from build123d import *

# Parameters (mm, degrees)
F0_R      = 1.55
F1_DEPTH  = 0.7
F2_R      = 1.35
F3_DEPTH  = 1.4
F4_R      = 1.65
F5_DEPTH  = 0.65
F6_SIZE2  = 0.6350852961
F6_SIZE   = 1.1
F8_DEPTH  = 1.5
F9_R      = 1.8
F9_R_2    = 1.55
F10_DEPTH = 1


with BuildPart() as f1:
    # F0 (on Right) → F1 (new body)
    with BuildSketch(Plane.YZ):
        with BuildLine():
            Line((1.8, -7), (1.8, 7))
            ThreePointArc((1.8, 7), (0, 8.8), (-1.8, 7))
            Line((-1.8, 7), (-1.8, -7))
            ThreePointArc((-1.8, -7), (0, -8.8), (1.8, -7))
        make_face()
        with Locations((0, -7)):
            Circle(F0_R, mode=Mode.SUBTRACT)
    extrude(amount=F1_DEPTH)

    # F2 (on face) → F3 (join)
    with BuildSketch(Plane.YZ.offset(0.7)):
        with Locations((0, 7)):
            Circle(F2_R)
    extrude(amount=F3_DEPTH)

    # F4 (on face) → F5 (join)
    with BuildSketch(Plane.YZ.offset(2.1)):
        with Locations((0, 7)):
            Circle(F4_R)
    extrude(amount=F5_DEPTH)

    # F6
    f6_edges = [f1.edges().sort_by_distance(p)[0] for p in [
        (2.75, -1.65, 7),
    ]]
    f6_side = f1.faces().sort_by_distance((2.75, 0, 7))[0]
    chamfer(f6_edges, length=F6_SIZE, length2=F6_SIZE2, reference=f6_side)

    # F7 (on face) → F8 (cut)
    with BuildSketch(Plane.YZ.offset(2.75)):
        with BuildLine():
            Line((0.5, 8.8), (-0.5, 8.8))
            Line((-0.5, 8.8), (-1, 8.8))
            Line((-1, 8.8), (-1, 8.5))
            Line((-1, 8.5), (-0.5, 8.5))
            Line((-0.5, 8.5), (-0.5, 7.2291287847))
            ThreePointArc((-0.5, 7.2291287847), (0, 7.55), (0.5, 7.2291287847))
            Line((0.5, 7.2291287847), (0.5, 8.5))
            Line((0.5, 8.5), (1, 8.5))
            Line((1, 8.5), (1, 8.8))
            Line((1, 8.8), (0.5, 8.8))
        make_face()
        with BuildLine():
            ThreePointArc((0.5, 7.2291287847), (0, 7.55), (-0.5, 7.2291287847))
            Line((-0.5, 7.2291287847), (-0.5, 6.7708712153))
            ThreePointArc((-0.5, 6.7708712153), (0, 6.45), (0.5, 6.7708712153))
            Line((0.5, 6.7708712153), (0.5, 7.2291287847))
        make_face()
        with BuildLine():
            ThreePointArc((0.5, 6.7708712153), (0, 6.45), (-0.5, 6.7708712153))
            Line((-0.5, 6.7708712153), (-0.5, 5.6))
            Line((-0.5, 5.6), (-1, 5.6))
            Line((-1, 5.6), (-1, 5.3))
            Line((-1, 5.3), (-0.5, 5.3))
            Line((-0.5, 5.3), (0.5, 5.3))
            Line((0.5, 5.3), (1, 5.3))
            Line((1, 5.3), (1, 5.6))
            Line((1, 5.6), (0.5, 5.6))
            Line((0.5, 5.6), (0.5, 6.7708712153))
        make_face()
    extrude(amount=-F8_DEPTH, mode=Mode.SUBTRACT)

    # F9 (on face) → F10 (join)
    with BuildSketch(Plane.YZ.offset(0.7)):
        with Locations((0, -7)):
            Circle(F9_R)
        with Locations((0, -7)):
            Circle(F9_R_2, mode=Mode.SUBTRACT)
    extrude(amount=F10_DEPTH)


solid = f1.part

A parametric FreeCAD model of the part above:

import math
import FreeCAD as App
import Part
import Sketcher
from FreeCAD import Vector


def edges_at(feature, points):
    """Names of the edges that pass closest to the given points."""
    edges = feature.Shape.Edges
    near = lambda p: min(range(len(edges)), key=lambda i: edges[i].distToShape(Part.Vertex(*p))[0])
    return sorted({f"Edge{near(p) + 1}" for p in points})

doc = App.newDocument("Part")
body = doc.addObject("PartDesign::Body", "Body")

# Sketch on YZ plane
sketch1 = body.newObject("Sketcher::SketchObject", "Sketch")
sketch1.AttachmentSupport = (doc.getObject("YZ_Plane"), [""])
sketch1.MapMode = "FlatFace"
sketch1.addGeometry([
    Part.LineSegment(Vector(1.8, -7, 0), Vector(1.8, 7, 0)),  # 0
    Part.ArcOfCircle(Part.Circle(Vector(0, 7, 0), Vector(0, 0, 1), 1.8), math.radians(0), math.radians(180)),  # 1
    Part.LineSegment(Vector(-1.8, 7, 0), Vector(-1.8, -7, 0)),  # 2
    Part.ArcOfCircle(Part.Circle(Vector(0, -7, 0), Vector(0, 0, 1), 1.8), math.radians(180), math.radians(360)),  # 3
    Part.Circle(Vector(0, -7, 0), Vector(0, 0, 1), 1.6),  # 4
], False)
sketch1.addConstraint([
    Sketcher.Constraint("Tangent", 0, 2, 1, 1),
    Sketcher.Constraint("Tangent", 1, 2, 2, 1),
    Sketcher.Constraint("Tangent", 2, 2, 3, 1),
    Sketcher.Constraint("Tangent", 3, 2, 0, 1),
    Sketcher.Constraint("Vertical", 0),
    Sketcher.Constraint("Vertical", 2),
    Sketcher.Constraint("Coincident", 4, 3, 3, 3),
    Sketcher.Constraint("Symmetric", 1, 3, 3, 3, -1, 1),
    Sketcher.Constraint("Diameter", 4, 3.1),
    Sketcher.Constraint("Radius", 1, 1.8),
    Sketcher.Constraint("DistanceY", 0, 1, 0, 2, 14.0),
])
pad1 = body.newObject("PartDesign::Pad", "Pad")
pad1.Profile = sketch1
pad1.Length = 0.7

# Sketch on YZ plane
sketch2 = body.newObject("Sketcher::SketchObject", "Sketch001")
sketch2.AttachmentSupport = (doc.getObject("YZ_Plane"), [""])
sketch2.MapMode = "FlatFace"
sketch2.AttachmentOffset = App.Placement(Vector(0, 0, 0.7), App.Rotation())
sketch2.addGeometry(Part.Circle(Vector(0, 7, 0), Vector(0, 0, 1), 1.4), False)
sketch2.addConstraint([
    Sketcher.Constraint("PointOnObject", 0, 3, -2),
    Sketcher.Constraint("Diameter", 0, 2.7),
    Sketcher.Constraint("DistanceY", -1, 1, 0, 3, 7.0),
])
pad2 = body.newObject("PartDesign::Pad", "Pad001")
pad2.Profile = sketch2
pad2.Length = 1.4

# Sketch on YZ plane
sketch3 = body.newObject("Sketcher::SketchObject", "Sketch002")
sketch3.AttachmentSupport = (doc.getObject("YZ_Plane"), [""])
sketch3.MapMode = "FlatFace"
sketch3.AttachmentOffset = App.Placement(Vector(0, 0, 2.1), App.Rotation())
sketch3.addGeometry(Part.Circle(Vector(0, 7, 0), Vector(0, 0, 1), 1.6), False)
sketch3.addConstraint([
    Sketcher.Constraint("PointOnObject", 0, 3, -2),
    Sketcher.Constraint("Diameter", 0, 3.3),
    Sketcher.Constraint("DistanceY", -1, 1, 0, 3, 7.0),
])
pad3 = body.newObject("PartDesign::Pad", "Pad002")
pad3.Profile = sketch3
pad3.Length = 0.65
doc.recompute()

chamfer = body.newObject("PartDesign::Chamfer", "Chamfer")
chamfer.Base = (pad3, edges_at(pad3, [(2.75, -1.65, 7)]))
chamfer.ChamferType = "Two distances"
chamfer.Size = 1.1
chamfer.Size2 = 0.635085
chamfer.FlipDirection = True

# Sketch on YZ plane
sketch4 = body.newObject("Sketcher::SketchObject", "Sketch003")
sketch4.AttachmentSupport = (doc.getObject("YZ_Plane"), [""])
sketch4.MapMode = "FlatFace"
sketch4.AttachmentOffset = App.Placement(Vector(0, 0, 2.75), App.Rotation())
sketch4.addGeometry([
    Part.LineSegment(Vector(-1, 8.8, 0), Vector(-1, 8.5, 0)),  # 0
    Part.LineSegment(Vector(-1, 8.5, 0), Vector(-0.5, 8.5, 0)),  # 1
    Part.LineSegment(Vector(-0.5, 8.5, 0), Vector(-0.5, 5.6, 0)),  # 2
    Part.LineSegment(Vector(-0.5, 5.6, 0), Vector(-1, 5.6, 0)),  # 3
    Part.LineSegment(Vector(-1, 5.6, 0), Vector(-1, 5.3, 0)),  # 4
    Part.LineSegment(Vector(-1, 5.3, 0), Vector(1, 5.3, 0)),  # 5
    Part.LineSegment(Vector(1, 5.3, 0), Vector(1, 5.6, 0)),  # 6
    Part.LineSegment(Vector(1, 5.6, 0), Vector(0.5, 5.6, 0)),  # 7
    Part.LineSegment(Vector(0.5, 5.6, 0), Vector(0.5, 8.5, 0)),  # 8
    Part.LineSegment(Vector(0.5, 8.5, 0), Vector(1, 8.5, 0)),  # 9
    Part.LineSegment(Vector(1, 8.5, 0), Vector(1, 8.8, 0)),  # 10
    Part.LineSegment(Vector(1, 8.8, 0), Vector(-1, 8.8, 0)),  # 11
], False)
sketch4.addConstraint([
    Sketcher.Constraint("Coincident", 0, 2, 1, 1),
    Sketcher.Constraint("Coincident", 1, 2, 2, 1),
    Sketcher.Constraint("Coincident", 2, 2, 3, 1),
    Sketcher.Constraint("Coincident", 3, 2, 4, 1),
    Sketcher.Constraint("Coincident", 4, 2, 5, 1),
    Sketcher.Constraint("Coincident", 5, 2, 6, 1),
    Sketcher.Constraint("Coincident", 6, 2, 7, 1),
    Sketcher.Constraint("Coincident", 7, 2, 8, 1),
    Sketcher.Constraint("Coincident", 8, 2, 9, 1),
    Sketcher.Constraint("Coincident", 9, 2, 10, 1),
    Sketcher.Constraint("Coincident", 10, 2, 11, 1),
    Sketcher.Constraint("Coincident", 11, 2, 0, 1),
    Sketcher.Constraint("Vertical", 0),
    Sketcher.Constraint("Horizontal", 1),
    Sketcher.Constraint("Vertical", 2),
    Sketcher.Constraint("Horizontal", 3),
    Sketcher.Constraint("Vertical", 4),
    Sketcher.Constraint("Horizontal", 5),
    Sketcher.Constraint("Vertical", 6),
    Sketcher.Constraint("Horizontal", 7),
    Sketcher.Constraint("Vertical", 8),
    Sketcher.Constraint("Horizontal", 9),
    Sketcher.Constraint("Vertical", 10),
    Sketcher.Constraint("Horizontal", 11),
    Sketcher.Constraint("Symmetric", 3, 2, 6, 2, -2),
    Sketcher.Constraint("Symmetric", 1, 2, 8, 2, -2),
    Sketcher.Constraint("Vertical", 0, 2, 3, 2),
    Sketcher.Constraint("Vertical", 6, 2, 9, 2),
    Sketcher.Constraint("Equal", 0, 4),
    Sketcher.Constraint("DistanceX", 5, 1, 5, 2, 2.0),
    Sketcher.Constraint("DistanceX", 1, 1, 1, 2, 0.5),
    Sketcher.Constraint("DistanceY", 0, 2, 0, 1, 0.3),
    Sketcher.Constraint("DistanceY", 2, 2, 2, 1, 2.9),
    Sketcher.Constraint("DistanceY", -1, 1, 0, 2, 8.5),
])
pocket1 = body.newObject("PartDesign::Pocket", "Pocket")
pocket1.Profile = sketch4
pocket1.Length = 1.5

# Sketch on YZ plane
sketch5 = body.newObject("Sketcher::SketchObject", "Sketch004")
sketch5.AttachmentSupport = (doc.getObject("YZ_Plane"), [""])
sketch5.MapMode = "FlatFace"
sketch5.AttachmentOffset = App.Placement(Vector(0, 0, 0.7), App.Rotation())
sketch5.addGeometry([
    Part.Circle(Vector(0, -7, 0), Vector(0, 0, 1), 1.8),
    Part.Circle(Vector(0, -7, 0), Vector(0, 0, 1), 1.6),
], False)
sketch5.addConstraint([
    Sketcher.Constraint("Coincident", 1, 3, 0, 3),
    Sketcher.Constraint("PointOnObject", 0, 3, -2),
    Sketcher.Constraint("Diameter", 0, 3.6),
    Sketcher.Constraint("Diameter", 1, 3.1),
    Sketcher.Constraint("DistanceY", 0, 3, -1, 1, 7.0),
])
pad4 = body.newObject("PartDesign::Pad", "Pad003")
pad4.Profile = sketch5
pad4.Length = 1

doc.recompute()
